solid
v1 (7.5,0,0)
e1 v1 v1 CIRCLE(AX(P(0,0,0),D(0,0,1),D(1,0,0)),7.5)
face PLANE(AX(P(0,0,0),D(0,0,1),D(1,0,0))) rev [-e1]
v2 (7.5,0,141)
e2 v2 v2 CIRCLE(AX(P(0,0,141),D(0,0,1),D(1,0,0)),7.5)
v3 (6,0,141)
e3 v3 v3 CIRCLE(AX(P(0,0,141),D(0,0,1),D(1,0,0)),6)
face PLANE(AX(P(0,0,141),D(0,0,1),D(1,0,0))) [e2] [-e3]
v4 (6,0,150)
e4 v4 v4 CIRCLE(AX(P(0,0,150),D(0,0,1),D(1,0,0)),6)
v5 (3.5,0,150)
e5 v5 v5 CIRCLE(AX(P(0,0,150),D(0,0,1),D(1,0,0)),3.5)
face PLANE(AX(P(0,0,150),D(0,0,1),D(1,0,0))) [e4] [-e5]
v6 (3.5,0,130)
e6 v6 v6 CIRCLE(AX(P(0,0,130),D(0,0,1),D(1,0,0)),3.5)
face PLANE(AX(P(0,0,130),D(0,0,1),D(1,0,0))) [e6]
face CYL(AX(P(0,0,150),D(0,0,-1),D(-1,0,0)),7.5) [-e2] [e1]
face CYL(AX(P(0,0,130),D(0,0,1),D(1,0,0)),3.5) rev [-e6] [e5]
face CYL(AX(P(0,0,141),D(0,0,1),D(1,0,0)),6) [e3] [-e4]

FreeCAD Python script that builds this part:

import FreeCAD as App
import Part
import Sketcher

V = App.Vector

doc = App.newDocument("Part")
body = doc.addObject("PartDesign::Body", "Body")

sketch1 = body.newObject("Sketcher::SketchObject", "Sketch")
sketch1.AttachmentSupport = (doc.getObject("XY_Plane"), [""])
sketch1.MapMode = "FlatFace"
sketch1.addGeometry(Part.Circle(V(0, 0, 0), V(0, 0, 1), 8), False)
sketch1.addConstraint(Sketcher.Constraint("Coincident", 0, 3, -1, 1))
sketch1.addConstraint(Sketcher.Constraint("Diameter", 0, 15.0))
pad1 = body.newObject("PartDesign::Pad", "Pad")
pad1.Profile = sketch1
pad1.Length = 150

sketch2 = body.newObject("Sketcher::SketchObject", "Sketch001")
sketch2.AttachmentSupport = (doc.getObject("XY_Plane"), [""])
sketch2.MapMode = "FlatFace"
sketch2.AttachmentOffset = App.Placement(V(0, 0, 141), App.Rotation())
sketch2.addGeometry(Part.Circle(V(0, 0, 0), V(0, 0, 1), 8), False)
sketch2.addGeometry(Part.Circle(V(0, 0, 0), V(0, 0, 1), 6), False)
sketch2.addConstraint(Sketcher.Constraint("Coincident", 0, 3, -1, 1))
sketch2.addConstraint(Sketcher.Constraint("Coincident", 1, 3, -1, 1))
sketch2.addConstraint(Sketcher.Constraint("Diameter", 0, 15.0))
sketch2.addConstraint(Sketcher.Constraint("Diameter", 1, 12.0))
pocket1 = body.newObject("PartDesign::Pocket", "Pocket")
pocket1.Profile = sketch2
pocket1.Length = 9
pocket1.Reversed = True

sketch3 = body.newObject("Sketcher::SketchObject", "Sketch002")
sketch3.AttachmentSupport = (doc.getObject("XY_Plane"), [""])
sketch3.MapMode = "FlatFace"
sketch3.AttachmentOffset = App.Placement(V(0, 0, 150), App.Rotation())
sketch3.addGeometry(Part.Circle(V(0, 0, 0), V(0, 0, 1), 3.5), False)
sketch3.addConstraint(Sketcher.Constraint("Coincident", 0, 3, -1, 1))
sketch3.addConstraint(Sketcher.Constraint("Diameter", 0, 7.0))
pocket2 = body.newObject("PartDesign::Pocket", "Pocket001")
pocket2.Profile = sketch3
pocket2.Length = 20

doc.recompute()
